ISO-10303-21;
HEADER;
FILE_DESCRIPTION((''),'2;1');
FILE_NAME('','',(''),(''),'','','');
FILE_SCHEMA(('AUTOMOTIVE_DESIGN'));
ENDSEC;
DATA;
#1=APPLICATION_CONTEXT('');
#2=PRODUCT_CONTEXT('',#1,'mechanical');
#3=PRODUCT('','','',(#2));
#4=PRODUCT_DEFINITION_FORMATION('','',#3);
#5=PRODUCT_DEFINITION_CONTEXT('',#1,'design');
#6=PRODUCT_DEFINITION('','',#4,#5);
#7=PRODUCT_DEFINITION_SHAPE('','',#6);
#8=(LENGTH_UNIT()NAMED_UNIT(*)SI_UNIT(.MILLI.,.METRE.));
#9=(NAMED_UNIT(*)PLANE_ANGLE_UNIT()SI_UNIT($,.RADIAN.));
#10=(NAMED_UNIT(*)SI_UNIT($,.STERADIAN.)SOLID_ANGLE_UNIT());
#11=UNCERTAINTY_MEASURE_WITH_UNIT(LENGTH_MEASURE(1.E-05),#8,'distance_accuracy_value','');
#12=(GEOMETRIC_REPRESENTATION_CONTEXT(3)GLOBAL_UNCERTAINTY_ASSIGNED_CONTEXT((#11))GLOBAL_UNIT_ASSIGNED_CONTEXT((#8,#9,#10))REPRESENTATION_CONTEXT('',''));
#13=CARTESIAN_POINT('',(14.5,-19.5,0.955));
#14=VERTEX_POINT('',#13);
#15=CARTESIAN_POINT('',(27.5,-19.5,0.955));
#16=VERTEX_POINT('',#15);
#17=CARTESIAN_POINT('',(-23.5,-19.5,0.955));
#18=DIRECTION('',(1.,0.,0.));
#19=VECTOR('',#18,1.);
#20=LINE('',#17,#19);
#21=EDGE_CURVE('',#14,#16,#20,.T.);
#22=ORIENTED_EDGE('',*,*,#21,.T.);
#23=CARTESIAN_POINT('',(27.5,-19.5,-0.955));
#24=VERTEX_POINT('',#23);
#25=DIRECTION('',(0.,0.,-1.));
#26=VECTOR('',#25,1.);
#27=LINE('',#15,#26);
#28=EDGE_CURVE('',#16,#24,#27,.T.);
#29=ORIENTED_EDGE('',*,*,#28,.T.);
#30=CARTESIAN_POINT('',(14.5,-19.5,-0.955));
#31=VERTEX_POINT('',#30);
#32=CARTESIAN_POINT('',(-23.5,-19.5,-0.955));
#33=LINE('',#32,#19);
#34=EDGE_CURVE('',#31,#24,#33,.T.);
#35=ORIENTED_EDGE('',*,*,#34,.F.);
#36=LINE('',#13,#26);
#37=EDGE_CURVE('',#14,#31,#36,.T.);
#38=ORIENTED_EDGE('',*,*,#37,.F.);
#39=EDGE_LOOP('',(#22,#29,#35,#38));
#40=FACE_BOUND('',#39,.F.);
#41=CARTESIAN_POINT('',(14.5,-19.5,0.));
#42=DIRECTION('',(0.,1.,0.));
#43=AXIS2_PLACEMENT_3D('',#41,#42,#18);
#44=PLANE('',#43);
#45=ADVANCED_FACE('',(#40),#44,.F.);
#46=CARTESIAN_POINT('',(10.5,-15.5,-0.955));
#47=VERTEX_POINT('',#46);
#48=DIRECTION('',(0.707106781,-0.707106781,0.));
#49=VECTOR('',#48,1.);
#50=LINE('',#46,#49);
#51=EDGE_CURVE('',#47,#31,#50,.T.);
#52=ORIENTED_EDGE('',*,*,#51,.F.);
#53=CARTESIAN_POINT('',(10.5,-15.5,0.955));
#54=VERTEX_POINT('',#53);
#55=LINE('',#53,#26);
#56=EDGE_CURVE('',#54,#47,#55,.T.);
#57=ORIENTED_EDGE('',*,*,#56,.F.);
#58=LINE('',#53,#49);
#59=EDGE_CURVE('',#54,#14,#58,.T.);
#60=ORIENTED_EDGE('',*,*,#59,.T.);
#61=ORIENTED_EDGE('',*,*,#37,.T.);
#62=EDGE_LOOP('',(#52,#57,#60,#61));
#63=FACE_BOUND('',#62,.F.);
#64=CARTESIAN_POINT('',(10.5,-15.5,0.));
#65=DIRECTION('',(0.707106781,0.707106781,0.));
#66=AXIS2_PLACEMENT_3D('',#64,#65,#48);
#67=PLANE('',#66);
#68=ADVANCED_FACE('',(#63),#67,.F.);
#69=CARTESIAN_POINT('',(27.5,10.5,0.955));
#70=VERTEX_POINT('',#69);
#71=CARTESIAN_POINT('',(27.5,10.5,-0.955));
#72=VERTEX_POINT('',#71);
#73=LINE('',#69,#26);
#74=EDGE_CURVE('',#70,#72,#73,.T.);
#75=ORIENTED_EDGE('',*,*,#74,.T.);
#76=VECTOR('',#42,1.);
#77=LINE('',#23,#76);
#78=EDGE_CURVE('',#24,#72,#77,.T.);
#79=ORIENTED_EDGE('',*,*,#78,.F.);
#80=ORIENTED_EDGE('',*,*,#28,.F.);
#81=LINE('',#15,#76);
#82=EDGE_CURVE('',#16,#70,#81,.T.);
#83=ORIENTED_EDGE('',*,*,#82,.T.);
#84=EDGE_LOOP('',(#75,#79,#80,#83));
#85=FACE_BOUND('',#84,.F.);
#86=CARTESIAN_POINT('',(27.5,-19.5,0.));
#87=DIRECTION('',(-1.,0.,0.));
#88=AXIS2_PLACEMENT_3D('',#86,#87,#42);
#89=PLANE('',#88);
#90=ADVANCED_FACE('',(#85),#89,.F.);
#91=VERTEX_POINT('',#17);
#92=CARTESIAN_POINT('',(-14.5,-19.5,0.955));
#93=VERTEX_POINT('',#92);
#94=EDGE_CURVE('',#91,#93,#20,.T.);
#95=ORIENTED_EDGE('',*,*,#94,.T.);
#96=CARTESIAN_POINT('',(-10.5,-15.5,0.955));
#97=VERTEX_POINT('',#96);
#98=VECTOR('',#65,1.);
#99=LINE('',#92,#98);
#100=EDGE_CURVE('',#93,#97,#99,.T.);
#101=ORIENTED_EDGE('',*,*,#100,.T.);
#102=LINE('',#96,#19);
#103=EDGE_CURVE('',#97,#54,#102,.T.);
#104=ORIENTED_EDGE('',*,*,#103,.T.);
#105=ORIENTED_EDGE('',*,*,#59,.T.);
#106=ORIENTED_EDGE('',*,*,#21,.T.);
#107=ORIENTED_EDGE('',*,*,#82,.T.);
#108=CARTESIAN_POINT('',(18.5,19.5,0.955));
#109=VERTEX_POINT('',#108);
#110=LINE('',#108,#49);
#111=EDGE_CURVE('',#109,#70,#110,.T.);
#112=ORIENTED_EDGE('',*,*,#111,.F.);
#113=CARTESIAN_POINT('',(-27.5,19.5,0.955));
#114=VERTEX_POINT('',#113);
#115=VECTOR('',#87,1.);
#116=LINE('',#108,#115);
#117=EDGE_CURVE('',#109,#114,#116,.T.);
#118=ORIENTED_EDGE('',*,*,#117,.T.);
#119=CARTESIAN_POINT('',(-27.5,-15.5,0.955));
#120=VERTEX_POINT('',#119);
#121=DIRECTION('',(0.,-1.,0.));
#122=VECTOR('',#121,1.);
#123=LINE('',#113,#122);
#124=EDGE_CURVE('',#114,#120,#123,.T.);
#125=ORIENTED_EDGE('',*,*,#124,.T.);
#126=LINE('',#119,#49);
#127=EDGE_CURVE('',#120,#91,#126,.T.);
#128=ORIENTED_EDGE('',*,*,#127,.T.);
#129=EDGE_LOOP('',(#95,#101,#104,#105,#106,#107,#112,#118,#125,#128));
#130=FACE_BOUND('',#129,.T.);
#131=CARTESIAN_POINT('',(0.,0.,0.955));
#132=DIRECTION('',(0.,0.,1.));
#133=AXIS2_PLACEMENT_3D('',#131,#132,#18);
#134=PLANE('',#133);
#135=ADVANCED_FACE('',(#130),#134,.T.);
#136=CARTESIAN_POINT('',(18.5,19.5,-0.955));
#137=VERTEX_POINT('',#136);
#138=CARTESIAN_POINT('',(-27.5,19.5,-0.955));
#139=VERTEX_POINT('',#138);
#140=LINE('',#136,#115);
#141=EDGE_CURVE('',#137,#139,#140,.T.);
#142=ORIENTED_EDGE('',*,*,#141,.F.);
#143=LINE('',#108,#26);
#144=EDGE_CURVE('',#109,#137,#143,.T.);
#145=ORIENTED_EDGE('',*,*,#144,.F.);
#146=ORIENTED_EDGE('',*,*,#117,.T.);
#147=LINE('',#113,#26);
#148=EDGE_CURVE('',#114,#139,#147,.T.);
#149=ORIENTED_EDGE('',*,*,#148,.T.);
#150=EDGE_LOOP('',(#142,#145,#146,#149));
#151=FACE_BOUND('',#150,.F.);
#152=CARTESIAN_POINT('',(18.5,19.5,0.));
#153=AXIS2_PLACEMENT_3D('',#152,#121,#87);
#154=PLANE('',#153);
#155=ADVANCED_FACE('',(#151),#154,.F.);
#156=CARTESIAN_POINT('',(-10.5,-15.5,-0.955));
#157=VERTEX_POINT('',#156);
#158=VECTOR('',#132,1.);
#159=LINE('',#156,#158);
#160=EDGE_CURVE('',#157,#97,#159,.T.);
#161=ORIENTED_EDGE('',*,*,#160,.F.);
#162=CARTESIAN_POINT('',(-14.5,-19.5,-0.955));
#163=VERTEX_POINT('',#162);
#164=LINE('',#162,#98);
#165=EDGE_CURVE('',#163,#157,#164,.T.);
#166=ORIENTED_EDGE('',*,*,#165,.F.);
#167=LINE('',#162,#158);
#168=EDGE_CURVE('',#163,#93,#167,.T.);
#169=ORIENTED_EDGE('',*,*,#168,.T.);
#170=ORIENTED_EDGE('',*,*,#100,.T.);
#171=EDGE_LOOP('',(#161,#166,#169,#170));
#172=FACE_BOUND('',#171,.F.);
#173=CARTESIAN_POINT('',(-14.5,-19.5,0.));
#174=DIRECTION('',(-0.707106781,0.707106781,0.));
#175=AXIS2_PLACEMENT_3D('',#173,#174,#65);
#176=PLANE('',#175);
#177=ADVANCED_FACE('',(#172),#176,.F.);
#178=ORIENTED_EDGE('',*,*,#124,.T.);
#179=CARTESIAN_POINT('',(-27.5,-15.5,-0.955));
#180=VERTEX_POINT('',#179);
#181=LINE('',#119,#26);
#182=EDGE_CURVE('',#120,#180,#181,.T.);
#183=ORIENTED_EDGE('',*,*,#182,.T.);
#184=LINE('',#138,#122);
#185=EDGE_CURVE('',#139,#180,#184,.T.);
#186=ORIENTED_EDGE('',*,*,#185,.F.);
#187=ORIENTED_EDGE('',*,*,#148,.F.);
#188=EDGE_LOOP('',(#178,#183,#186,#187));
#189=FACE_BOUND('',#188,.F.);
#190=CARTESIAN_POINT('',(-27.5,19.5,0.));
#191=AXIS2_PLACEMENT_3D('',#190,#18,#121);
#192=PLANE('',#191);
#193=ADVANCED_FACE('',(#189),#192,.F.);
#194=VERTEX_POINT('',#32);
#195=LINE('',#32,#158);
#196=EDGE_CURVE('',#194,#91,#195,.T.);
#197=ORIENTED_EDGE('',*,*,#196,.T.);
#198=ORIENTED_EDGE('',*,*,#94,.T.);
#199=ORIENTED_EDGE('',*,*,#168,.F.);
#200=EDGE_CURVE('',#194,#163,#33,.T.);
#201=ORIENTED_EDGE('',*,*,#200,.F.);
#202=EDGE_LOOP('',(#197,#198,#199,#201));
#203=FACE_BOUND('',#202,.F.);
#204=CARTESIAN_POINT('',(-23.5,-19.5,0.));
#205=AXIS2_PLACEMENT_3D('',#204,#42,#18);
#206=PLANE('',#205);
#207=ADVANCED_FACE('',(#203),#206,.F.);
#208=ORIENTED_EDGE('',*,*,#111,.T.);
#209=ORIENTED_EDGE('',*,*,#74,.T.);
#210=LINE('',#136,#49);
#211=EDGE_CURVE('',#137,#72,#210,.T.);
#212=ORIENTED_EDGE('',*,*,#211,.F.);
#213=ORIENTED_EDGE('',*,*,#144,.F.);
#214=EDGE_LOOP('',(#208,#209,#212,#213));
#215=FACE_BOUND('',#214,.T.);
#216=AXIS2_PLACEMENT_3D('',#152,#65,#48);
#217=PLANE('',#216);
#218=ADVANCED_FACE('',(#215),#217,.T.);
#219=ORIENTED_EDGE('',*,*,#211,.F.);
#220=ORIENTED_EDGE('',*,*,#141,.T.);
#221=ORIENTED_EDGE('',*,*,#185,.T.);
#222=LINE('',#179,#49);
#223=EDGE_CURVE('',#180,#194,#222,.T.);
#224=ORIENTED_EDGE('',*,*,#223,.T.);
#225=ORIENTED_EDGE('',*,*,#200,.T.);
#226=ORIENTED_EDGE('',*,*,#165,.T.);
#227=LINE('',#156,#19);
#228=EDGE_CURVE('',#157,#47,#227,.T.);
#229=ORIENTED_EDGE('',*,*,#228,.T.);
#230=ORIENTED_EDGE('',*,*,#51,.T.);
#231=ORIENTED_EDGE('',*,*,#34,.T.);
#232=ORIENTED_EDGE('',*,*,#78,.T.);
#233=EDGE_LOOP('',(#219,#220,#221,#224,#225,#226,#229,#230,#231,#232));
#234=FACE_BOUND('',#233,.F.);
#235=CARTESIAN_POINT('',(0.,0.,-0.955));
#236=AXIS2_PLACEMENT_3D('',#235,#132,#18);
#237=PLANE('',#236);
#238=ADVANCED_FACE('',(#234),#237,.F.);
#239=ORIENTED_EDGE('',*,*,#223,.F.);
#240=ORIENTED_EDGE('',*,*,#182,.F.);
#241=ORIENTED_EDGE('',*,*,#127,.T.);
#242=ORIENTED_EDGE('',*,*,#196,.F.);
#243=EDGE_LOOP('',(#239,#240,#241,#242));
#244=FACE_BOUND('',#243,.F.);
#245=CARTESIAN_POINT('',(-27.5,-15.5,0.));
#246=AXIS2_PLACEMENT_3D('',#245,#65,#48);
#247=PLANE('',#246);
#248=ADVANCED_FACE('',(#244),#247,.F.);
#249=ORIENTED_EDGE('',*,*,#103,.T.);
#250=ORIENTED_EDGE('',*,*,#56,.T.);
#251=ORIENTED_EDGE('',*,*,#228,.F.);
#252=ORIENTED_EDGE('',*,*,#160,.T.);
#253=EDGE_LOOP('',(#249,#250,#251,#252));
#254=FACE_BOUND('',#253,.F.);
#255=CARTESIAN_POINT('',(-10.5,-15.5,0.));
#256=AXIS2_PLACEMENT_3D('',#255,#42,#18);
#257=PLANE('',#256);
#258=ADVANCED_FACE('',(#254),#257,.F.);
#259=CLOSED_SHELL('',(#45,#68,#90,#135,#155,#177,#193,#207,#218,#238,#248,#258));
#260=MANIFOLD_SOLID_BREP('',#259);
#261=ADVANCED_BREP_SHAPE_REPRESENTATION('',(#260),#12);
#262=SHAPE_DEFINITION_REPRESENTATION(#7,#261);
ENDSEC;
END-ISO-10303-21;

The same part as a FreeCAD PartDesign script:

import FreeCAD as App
import Part
import Sketcher
from FreeCAD import Vector
Q = App.Units.Quantity


def add_polygon(sketch, points):
    """Adds a closed chain of lines whose ends are joined by coincident constraints."""
    first, n = sketch.GeometryCount, len(points)
    for a, b in zip(points, points[1:] + points[:1]):
        sketch.addGeometry(Part.LineSegment(App.Vector(*a, 0), App.Vector(*b, 0)), False)
    for i in range(n):
        sketch.addConstraint(Sketcher.Constraint("Coincident", first + i, 2, first + (i + 1) % n, 1))

doc = App.newDocument("Part")
params = doc.addObject("Spreadsheet::Sheet", "Params")
for row, (alias, value) in enumerate([
    ("sketch1_width", "9 mm"),
    ("sketch1_width2", "21 mm"),
    ("pad1_length", "1.91 mm"),
], start=1):
    params.set(f"A{row}", alias)
    params.set(f"B{row}", "=" + value)
    params.setAlias(f"B{row}", alias)

body = doc.addObject("PartDesign::Body", "Body")

sketch1 = body.newObject("Sketcher::SketchObject", "Sketch")
sketch1.AttachmentSupport = (doc.getObject("XY_Plane"), [""])
sketch1.MapMode = "FlatFace"
add_polygon(sketch1, [(-27.5, -15.5), (-23.5, -19.5), (-14.5, -19.5), (-10.5, -15.5), (10.5, -15.5), (14.5, -19.5), (27.5, -19.5), (27.5, 10.5), (18.5, 19.5), (-27.5, 19.5)])
sketch1.addConstraint(Sketcher.Constraint("Horizontal", 1))
sketch1.addConstraint(Sketcher.Constraint("Horizontal", 3))
sketch1.addConstraint(Sketcher.Constraint("Horizontal", 5))
sketch1.addConstraint(Sketcher.Constraint("Vertical", 6))
sketch1.addConstraint(Sketcher.Constraint("Horizontal", 8))
sketch1.addConstraint(Sketcher.Constraint("Vertical", 9))
sketch1.addConstraint(Sketcher.Constraint("Symmetric", 5, 2, 8, 2, -1, 1))
sketch1.addConstraint(Sketcher.Constraint("Symmetric", 1, 2, 4, 2, -2))
sketch1.addConstraint(Sketcher.Constraint("Perpendicular", 0, 2))
sketch1.addConstraint(Sketcher.Constraint("Perpendicular", 2, 4))
sketch1.addConstraint(Sketcher.Constraint("Parallel", 4, 7))
sketch1.addConstraint(Sketcher.Constraint("Horizontal", 3, 2, 9, 2))
sketch1.addConstraint(Sketcher.Constraint("Equal", 0, 2))
sketch1.addConstraint(Sketcher.Constraint("DistanceX", 1, 1, 1, 2, Q("9 mm")))
sketch1.addConstraint(Sketcher.Constraint("DistanceX", 1, 2, 2, 2, Q("4 mm")))
sketch1.addConstraint(Sketcher.Constraint("DistanceX", 7, 2, 6, 2, Q("9 mm")))
sketch1.addConstraint(Sketcher.Constraint("DistanceY", 4, 2, 7, 2, Q("39 mm")))
sketch1.addConstraint(Sketcher.Constraint("DistanceX", 3, 1, 3, 2, Q("21 mm")))
sketch1.setExpression("Constraints[23]", "Params.sketch1_width")
sketch1.setExpression("Constraints[27]", "Params.sketch1_width2")
pad1 = body.newObject("PartDesign::Pad", "Pad")
pad1.Profile = sketch1
pad1.setExpression("Length", "Params.pad1_length")
pad1.Midplane = True

doc.recompute()
